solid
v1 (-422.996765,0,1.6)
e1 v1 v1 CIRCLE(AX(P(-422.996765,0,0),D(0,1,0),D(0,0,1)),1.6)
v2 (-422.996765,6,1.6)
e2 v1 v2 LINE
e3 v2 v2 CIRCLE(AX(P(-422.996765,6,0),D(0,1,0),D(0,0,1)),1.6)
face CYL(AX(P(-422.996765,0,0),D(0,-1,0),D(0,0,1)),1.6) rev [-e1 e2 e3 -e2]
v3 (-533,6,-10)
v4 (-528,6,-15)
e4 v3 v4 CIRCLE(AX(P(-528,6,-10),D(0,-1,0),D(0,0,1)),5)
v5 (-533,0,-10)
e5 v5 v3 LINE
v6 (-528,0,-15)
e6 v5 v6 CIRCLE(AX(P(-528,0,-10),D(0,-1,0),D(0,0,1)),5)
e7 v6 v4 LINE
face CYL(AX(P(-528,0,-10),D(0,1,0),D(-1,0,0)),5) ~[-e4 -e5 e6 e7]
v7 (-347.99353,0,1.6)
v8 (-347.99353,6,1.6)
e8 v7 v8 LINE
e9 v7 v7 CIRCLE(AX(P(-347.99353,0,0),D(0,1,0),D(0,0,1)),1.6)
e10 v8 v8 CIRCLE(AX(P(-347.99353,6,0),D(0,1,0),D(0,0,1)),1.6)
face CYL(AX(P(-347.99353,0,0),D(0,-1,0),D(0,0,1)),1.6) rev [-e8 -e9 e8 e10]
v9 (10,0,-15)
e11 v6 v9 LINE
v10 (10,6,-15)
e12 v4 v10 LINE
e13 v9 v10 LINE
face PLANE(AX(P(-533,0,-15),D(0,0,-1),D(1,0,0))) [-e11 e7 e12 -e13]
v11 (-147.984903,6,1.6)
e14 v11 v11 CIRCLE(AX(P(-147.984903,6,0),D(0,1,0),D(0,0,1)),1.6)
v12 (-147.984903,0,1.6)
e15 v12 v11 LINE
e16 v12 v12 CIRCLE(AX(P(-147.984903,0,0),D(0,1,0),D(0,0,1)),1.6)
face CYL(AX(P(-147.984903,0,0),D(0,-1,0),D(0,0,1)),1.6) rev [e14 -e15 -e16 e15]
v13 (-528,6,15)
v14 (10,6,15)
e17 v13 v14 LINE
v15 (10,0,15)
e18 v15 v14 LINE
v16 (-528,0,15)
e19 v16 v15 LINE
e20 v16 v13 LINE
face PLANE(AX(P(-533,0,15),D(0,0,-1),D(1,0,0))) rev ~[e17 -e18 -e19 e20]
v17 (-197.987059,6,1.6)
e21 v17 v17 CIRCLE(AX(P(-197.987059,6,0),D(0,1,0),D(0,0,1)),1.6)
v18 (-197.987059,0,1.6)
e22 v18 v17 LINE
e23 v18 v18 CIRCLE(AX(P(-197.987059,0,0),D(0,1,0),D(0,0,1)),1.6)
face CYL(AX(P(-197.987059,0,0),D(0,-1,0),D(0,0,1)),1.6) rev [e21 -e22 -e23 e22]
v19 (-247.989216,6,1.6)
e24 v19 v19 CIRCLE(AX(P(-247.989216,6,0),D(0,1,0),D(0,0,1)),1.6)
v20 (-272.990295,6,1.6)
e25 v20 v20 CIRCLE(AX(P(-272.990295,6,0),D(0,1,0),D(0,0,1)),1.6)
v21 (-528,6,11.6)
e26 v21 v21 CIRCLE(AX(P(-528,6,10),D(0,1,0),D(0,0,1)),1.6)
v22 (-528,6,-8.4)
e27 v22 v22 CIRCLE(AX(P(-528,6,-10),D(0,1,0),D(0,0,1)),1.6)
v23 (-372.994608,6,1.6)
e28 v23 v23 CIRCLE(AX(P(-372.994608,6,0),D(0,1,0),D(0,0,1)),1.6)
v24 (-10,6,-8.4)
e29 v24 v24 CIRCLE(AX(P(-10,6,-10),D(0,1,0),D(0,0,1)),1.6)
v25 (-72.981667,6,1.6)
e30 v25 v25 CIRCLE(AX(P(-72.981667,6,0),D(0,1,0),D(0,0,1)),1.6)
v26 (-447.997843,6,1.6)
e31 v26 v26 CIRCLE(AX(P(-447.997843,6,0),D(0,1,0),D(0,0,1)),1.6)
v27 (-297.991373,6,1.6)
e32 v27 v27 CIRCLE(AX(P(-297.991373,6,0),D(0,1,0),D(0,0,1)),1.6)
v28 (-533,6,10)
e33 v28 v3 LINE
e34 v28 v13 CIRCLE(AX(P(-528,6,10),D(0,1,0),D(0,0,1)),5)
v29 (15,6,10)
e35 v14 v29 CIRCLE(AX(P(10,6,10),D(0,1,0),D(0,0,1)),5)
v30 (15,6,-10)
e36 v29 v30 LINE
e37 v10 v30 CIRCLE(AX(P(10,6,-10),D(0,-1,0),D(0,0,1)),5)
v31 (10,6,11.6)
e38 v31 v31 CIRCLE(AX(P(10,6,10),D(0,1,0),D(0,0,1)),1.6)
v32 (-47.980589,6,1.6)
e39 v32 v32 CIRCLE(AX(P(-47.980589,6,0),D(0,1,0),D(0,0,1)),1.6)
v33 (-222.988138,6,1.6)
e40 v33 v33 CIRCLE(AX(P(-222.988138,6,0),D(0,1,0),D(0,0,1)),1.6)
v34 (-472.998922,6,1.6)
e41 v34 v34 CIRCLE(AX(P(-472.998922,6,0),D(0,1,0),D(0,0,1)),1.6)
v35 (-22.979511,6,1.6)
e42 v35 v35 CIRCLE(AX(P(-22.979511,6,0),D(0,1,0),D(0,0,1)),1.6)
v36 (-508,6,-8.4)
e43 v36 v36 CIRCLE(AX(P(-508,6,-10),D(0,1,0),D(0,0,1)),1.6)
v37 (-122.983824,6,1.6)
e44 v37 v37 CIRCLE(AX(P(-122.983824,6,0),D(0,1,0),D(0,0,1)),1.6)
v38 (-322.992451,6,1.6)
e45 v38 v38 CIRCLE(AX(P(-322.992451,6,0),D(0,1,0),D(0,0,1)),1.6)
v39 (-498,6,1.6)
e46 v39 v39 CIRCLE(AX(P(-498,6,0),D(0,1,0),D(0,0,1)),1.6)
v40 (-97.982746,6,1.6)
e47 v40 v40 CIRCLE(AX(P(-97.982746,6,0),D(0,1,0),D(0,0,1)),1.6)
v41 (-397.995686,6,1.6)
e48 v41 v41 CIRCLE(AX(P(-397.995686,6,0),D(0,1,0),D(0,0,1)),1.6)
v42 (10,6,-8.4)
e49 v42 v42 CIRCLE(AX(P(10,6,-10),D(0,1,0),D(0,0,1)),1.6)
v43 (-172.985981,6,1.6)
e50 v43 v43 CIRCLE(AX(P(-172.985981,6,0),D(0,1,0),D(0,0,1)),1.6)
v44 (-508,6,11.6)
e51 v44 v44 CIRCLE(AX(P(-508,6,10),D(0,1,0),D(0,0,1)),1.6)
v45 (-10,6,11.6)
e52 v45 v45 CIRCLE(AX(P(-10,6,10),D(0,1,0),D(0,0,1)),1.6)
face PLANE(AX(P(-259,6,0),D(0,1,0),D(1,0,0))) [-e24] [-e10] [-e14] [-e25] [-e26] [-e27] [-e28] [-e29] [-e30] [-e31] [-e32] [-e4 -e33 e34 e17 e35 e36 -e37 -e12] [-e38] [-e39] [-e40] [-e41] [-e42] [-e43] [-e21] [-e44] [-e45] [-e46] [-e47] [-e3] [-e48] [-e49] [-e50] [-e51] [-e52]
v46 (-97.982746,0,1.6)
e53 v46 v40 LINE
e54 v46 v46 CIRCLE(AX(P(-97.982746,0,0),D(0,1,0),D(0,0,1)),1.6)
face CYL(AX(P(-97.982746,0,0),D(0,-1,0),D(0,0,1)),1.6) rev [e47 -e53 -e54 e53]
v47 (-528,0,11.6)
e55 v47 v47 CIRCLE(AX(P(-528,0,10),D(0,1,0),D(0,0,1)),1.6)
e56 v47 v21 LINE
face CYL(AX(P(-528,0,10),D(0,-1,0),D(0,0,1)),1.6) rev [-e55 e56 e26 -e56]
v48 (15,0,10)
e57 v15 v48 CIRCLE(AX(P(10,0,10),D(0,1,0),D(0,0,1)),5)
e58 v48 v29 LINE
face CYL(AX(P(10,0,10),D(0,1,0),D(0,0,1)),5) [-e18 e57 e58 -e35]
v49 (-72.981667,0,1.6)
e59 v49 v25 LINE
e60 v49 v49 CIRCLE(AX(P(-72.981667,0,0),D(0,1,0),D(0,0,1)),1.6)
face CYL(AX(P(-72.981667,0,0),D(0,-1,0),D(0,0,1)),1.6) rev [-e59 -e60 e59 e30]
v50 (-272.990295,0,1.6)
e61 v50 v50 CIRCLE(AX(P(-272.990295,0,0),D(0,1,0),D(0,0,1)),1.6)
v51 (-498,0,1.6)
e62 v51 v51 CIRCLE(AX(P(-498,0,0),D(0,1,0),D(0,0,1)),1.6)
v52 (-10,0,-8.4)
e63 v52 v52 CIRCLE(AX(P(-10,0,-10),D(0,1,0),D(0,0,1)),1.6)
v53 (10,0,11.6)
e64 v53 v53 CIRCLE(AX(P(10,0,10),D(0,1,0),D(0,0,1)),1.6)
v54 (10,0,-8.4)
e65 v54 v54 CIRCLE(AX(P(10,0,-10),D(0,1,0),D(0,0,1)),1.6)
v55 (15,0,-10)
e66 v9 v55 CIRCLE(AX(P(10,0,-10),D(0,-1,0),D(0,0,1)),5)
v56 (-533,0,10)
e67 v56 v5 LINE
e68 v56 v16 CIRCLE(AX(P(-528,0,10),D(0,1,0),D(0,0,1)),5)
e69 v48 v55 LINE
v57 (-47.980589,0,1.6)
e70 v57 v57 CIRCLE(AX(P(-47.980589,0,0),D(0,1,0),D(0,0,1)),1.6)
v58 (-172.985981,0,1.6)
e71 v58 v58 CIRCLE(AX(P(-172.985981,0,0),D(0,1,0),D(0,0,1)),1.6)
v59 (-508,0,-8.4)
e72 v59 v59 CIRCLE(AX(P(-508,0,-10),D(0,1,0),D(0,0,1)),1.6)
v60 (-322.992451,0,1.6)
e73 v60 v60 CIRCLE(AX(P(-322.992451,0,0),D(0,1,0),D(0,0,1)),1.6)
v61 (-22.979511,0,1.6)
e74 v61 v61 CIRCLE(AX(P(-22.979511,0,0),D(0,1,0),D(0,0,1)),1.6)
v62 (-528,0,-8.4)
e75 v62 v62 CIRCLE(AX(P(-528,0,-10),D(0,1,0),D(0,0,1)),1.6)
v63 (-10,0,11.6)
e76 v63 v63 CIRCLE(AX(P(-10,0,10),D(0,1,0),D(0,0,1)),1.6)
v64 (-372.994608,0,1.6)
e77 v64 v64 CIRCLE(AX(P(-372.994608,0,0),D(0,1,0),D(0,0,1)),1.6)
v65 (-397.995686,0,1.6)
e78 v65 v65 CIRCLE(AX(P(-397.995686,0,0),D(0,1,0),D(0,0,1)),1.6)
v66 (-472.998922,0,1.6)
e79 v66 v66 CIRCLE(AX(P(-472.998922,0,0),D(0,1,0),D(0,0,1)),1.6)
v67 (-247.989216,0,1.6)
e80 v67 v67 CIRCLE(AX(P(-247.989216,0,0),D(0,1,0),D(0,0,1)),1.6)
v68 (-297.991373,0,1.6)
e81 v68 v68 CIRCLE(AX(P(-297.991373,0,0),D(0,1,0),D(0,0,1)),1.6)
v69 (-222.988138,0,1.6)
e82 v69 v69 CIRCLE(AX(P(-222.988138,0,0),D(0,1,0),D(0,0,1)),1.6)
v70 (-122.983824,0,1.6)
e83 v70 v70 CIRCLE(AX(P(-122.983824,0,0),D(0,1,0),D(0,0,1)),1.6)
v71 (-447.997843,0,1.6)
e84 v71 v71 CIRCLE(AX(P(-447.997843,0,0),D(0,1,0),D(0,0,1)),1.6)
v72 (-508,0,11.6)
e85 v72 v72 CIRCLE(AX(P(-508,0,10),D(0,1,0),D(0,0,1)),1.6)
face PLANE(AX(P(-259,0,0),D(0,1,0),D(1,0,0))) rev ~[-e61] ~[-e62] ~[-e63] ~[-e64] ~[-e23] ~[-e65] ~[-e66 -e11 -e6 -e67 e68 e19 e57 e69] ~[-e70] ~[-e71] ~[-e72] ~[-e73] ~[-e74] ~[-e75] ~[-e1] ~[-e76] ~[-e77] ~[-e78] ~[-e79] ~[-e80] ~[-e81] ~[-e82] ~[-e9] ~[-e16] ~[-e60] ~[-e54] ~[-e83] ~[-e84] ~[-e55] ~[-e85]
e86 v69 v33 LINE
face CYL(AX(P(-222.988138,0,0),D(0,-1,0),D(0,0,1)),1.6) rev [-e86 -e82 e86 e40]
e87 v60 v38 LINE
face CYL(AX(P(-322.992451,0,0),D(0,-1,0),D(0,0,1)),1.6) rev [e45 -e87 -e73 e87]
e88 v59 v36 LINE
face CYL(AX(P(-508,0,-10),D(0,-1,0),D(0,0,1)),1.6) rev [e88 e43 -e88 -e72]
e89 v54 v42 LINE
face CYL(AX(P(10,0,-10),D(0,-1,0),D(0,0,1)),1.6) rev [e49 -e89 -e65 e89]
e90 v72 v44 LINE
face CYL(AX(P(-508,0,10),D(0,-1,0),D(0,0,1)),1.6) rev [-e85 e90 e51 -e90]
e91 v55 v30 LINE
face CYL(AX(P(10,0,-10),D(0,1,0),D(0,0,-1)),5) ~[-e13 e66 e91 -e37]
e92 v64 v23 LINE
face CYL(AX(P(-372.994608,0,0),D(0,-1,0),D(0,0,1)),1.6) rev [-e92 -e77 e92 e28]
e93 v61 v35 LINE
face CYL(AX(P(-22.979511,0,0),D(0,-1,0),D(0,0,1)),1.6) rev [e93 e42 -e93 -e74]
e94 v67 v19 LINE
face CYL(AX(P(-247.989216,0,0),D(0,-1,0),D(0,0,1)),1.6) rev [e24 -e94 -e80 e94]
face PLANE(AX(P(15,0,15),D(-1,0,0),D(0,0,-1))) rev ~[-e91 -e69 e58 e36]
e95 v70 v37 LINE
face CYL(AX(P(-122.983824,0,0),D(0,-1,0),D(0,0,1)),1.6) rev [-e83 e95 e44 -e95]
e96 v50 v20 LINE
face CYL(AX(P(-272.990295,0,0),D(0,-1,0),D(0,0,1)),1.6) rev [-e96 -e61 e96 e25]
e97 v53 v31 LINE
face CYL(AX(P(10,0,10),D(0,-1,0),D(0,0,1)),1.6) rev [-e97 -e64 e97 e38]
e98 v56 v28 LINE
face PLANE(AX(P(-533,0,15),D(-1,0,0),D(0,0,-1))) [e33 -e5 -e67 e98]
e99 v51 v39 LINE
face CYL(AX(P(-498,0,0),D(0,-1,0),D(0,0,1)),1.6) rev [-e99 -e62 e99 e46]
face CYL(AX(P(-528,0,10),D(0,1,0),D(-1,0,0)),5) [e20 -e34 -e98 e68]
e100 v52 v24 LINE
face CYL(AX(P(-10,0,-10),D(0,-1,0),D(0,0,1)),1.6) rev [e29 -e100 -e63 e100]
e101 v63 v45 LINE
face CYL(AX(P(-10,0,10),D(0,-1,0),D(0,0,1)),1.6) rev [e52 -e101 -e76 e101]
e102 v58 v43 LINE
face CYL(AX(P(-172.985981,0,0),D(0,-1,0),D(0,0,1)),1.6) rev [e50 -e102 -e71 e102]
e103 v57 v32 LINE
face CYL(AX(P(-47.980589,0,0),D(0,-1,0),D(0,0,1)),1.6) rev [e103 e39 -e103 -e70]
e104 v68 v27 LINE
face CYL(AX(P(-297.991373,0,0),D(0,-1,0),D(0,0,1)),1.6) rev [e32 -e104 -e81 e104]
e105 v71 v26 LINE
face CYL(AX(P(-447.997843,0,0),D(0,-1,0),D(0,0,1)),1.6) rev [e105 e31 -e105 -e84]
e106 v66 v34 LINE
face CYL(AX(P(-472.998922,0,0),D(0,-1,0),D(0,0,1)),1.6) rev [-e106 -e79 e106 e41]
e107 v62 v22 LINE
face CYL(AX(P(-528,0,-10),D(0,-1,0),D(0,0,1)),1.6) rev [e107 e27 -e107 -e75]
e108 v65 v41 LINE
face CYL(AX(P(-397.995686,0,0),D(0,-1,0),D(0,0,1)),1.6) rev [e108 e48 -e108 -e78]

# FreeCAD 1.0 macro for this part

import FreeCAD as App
import Part
import Sketcher
Q = App.Units.Quantity


def edges_at(feature, points):
    """Names of the edges that pass closest to the given points."""
    edges = feature.Shape.Edges
    near = lambda p: min(range(len(edges)), key=lambda i: edges[i].distToShape(Part.Vertex(*p))[0])
    return sorted({f"Edge{near(p) + 1}" for p in points})


def add_polygon(sketch, points):
    """Adds a closed chain of lines whose ends are joined by coincident constraints."""
    first, n = sketch.GeometryCount, len(points)
    for a, b in zip(points, points[1:] + points[:1]):
        sketch.addGeometry(Part.LineSegment(App.Vector(*a, 0), App.Vector(*b, 0)), False)
    for i in range(n):
        sketch.addConstraint(Sketcher.Constraint("Coincident", first + i, 2, first + (i + 1) % n, 1))

doc = App.newDocument("Part")
body = doc.addObject("PartDesign::Body", "Body")

sketch1 = body.newObject("Sketcher::SketchObject", "Sketch")
sketch1.AttachmentSupport = (doc.getObject("XZ_Plane"), [""])
sketch1.MapMode = "FlatFace"
add_polygon(sketch1, [(-533, -15), (-533, 15), (15, 15), (15, -15)])
sketch1.addGeometry(Part.Circle(App.Vector(-528, 10, 0), App.Vector(0, 0, 1), 1.6), False)
sketch1.addGeometry(Part.Circle(App.Vector(-508, 10, 0), App.Vector(0, 0, 1), 1.6), False)
sketch1.addGeometry(Part.Circle(App.Vector(-10, 10, 0), App.Vector(0, 0, 1), 1.6), False)
sketch1.addGeometry(Part.Circle(App.Vector(10, 10, 0), App.Vector(0, 0, 1), 1.6), False)
sketch1.addGeometry(Part.Circle(App.Vector(-498, 0, 0), App.Vector(0, 0, 1), 1.6), False)
sketch1.addGeometry(Part.Circle(App.Vector(-472.998922, 0, 0), App.Vector(0, 0, 1), 1.6), False)
sketch1.addGeometry(Part.Circle(App.Vector(-447.997843, 0, 0), App.Vector(0, 0, 1), 1.6), False)
sketch1.addGeometry(Part.Circle(App.Vector(-422.996765, 0, 0), App.Vector(0, 0, 1), 1.6), False)
sketch1.addGeometry(Part.Circle(App.Vector(-397.995686, 0, 0), App.Vector(0, 0, 1), 1.6), False)
sketch1.addGeometry(Part.Circle(App.Vector(-372.994608, 0, 0), App.Vector(0, 0, 1), 1.6), False)
sketch1.addGeometry(Part.Circle(App.Vector(-347.99353, 0, 0), App.Vector(0, 0, 1), 1.6), False)
sketch1.addGeometry(Part.Circle(App.Vector(-322.992451, 0, 0), App.Vector(0, 0, 1), 1.6), False)
sketch1.addGeometry(Part.Circle(App.Vector(-297.991373, 0, 0), App.Vector(0, 0, 1), 1.6), False)
sketch1.addGeometry(Part.Circle(App.Vector(-272.990295, 0, 0), App.Vector(0, 0, 1), 1.6), False)
sketch1.addGeometry(Part.Circle(App.Vector(-528, -10, 0), App.Vector(0, 0, 1), 1.6), False)
sketch1.addGeometry(Part.Circle(App.Vector(-508, -10, 0), App.Vector(0, 0, 1), 1.6), False)
sketch1.addGeometry(Part.Circle(App.Vector(-247.989216, 0, 0), App.Vector(0, 0, 1), 1.6), False)
sketch1.addGeometry(Part.Circle(App.Vector(-222.988138, 0, 0), App.Vector(0, 0, 1), 1.6), False)
sketch1.addGeometry(Part.Circle(App.Vector(-197.987059, 0, 0), App.Vector(0, 0, 1), 1.6), False)
sketch1.addGeometry(Part.Circle(App.Vector(-172.985981, 0, 0), App.Vector(0, 0, 1), 1.6), False)
sketch1.addGeometry(Part.Circle(App.Vector(-147.984903, 0, 0), App.Vector(0, 0, 1), 1.6), False)
sketch1.addGeometry(Part.Circle(App.Vector(-122.983824, 0, 0), App.Vector(0, 0, 1), 1.6), False)
sketch1.addGeometry(Part.Circle(App.Vector(-97.982746, 0, 0), App.Vector(0, 0, 1), 1.6), False)
sketch1.addGeometry(Part.Circle(App.Vector(-72.981667, 0, 0), App.Vector(0, 0, 1), 1.6), False)
sketch1.addGeometry(Part.Circle(App.Vector(-47.980589, 0, 0), App.Vector(0, 0, 1), 1.6), False)
sketch1.addGeometry(Part.Circle(App.Vector(-22.979511, 0, 0), App.Vector(0, 0, 1), 1.6), False)
sketch1.addGeometry(Part.Circle(App.Vector(-10, -10, 0), App.Vector(0, 0, 1), 1.6), False)
sketch1.addGeometry(Part.Circle(App.Vector(10, -10, 0), App.Vector(0, 0, 1), 1.6), False)
sketch1.addConstraint([
    Sketcher.Constraint("Vertical", 0),
    Sketcher.Constraint("Horizontal", 1),
    Sketcher.Constraint("Vertical", 2),
    Sketcher.Constraint("Horizontal", 3),
    Sketcher.Constraint("Equal", 4, 5),
    Sketcher.Constraint("Equal", 5, 6),
    Sketcher.Constraint("Equal", 6, 7),
    Sketcher.Constraint("Equal", 7, 8),
    Sketcher.Constraint("Equal", 8, 9),
    Sketcher.Constraint("Equal", 9, 10),
    Sketcher.Constraint("Equal", 10, 11),
    Sketcher.Constraint("Equal", 11, 12),
    Sketcher.Constraint("Equal", 12, 13),
    Sketcher.Constraint("Equal", 13, 14),
    Sketcher.Constraint("Equal", 14, 15),
    Sketcher.Constraint("Equal", 15, 16),
    Sketcher.Constraint("Equal", 16, 17),
    Sketcher.Constraint("Equal", 17, 18),
    Sketcher.Constraint("Equal", 18, 19),
    Sketcher.Constraint("Equal", 19, 20),
    Sketcher.Constraint("Equal", 20, 21),
    Sketcher.Constraint("Equal", 21, 22),
    Sketcher.Constraint("Equal", 22, 23),
    Sketcher.Constraint("Equal", 23, 24),
    Sketcher.Constraint("Equal", 24, 25),
    Sketcher.Constraint("Equal", 25, 26),
    Sketcher.Constraint("Equal", 26, 27),
    Sketcher.Constraint("Equal", 27, 28),
    Sketcher.Constraint("Equal", 28, 29),
    Sketcher.Constraint("Equal", 29, 30),
    Sketcher.Constraint("Equal", 30, 31),
    Sketcher.Constraint("Symmetric", 7, 3, 30, 3, -1, 1),
    Sketcher.Constraint("Symmetric", 6, 3, 31, 3, -1, 1),
    Sketcher.Constraint("Symmetric", 6, 3, 7, 3, -2),
    Sketcher.Constraint("Symmetric", 4, 3, 18, 3, -1),
    Sketcher.Constraint("Symmetric", 5, 3, 19, 3, -1),
    Sketcher.Constraint("PointOnObject", 8, 3, -1),
    Sketcher.Constraint("PointOnObject", 9, 3, -1),
    Sketcher.Constraint("PointOnObject", 10, 3, -1),
    Sketcher.Constraint("PointOnObject", 11, 3, -1),
    Sketcher.Constraint("PointOnObject", 12, 3, -1),
    Sketcher.Constraint("PointOnObject", 13, 3, -1),
    Sketcher.Constraint("PointOnObject", 14, 3, -1),
    Sketcher.Constraint("PointOnObject", 15, 3, -1),
    Sketcher.Constraint("PointOnObject", 16, 3, -1),
    Sketcher.Constraint("PointOnObject", 17, 3, -1),
    Sketcher.Constraint("PointOnObject", 20, 3, -1),
    Sketcher.Constraint("PointOnObject", 21, 3, -1),
    Sketcher.Constraint("PointOnObject", 22, 3, -1),
    Sketcher.Constraint("PointOnObject", 23, 3, -1),
    Sketcher.Constraint("PointOnObject", 24, 3, -1),
    Sketcher.Constraint("PointOnObject", 25, 3, -1),
    Sketcher.Constraint("PointOnObject", 26, 3, -1),
    Sketcher.Constraint("PointOnObject", 27, 3, -1),
    Sketcher.Constraint("PointOnObject", 28, 3, -1),
    Sketcher.Constraint("PointOnObject", 29, 3, -1),
    Sketcher.Constraint("Horizontal", 4, 3, 5, 3),
    Sketcher.Constraint("Horizontal", 5, 3, 6, 3),
    Sketcher.Constraint("Diameter", 4, Q("3.2 mm")),
    Sketcher.Constraint("DistanceX", 1, 1, 1, 2, Q("548 mm")),
    Sketcher.Constraint("DistanceY", 0, 1, 0, 2, Q("30 mm")),
    Sketcher.Constraint("DistanceX", 4, 3, -1, 1, Q("528 mm")),
    Sketcher.Constraint("DistanceY", -1, 1, 4, 3, Q("10 mm")),
    Sketcher.Constraint("DistanceX", 5, 3, -1, 1, Q("508 mm")),
    Sketcher.Constraint("DistanceX", 6, 3, -1, 1, Q("10 mm")),
    Sketcher.Constraint("DistanceX", 8, 3, -1, 1, Q("498 mm")),
    Sketcher.Constraint("DistanceX", 0, 2, -1, 1, Q("533 mm")),
    Sketcher.Constraint("DistanceY", -1, 1, 0, 2, Q("15 mm")),
    Sketcher.Constraint("DistanceX", 9, 3, -1, 1, Q("472.998922 mm")),
    Sketcher.Constraint("DistanceX", 13, 3, -1, 1, Q("372.994608 mm")),
    Sketcher.Constraint("DistanceX", 14, 3, -1, 1, Q("347.99353 mm")),
    Sketcher.Constraint("DistanceX", 15, 3, -1, 1, Q("322.992451 mm")),
    Sketcher.Constraint("DistanceX", 22, 3, -1, 1, Q("197.987059 mm")),
    Sketcher.Constraint("DistanceX", 23, 3, -1, 1, Q("172.985981 mm")),
    Sketcher.Constraint("DistanceX", 28, 3, -1, 1, Q("47.980589 mm")),
    Sketcher.Constraint("DistanceX", 29, 3, -1, 1, Q("22.979511 mm")),
    Sketcher.Constraint("DistanceX", 9, 3, 10, 3, Q("25.001078 mm")),
    Sketcher.Constraint("DistanceX", 10, 3, 11, 3, Q("25.001078 mm")),
    Sketcher.Constraint("DistanceX", 11, 3, 12, 3, Q("25.001078 mm")),
    Sketcher.Constraint("DistanceX", 15, 3, 16, 3, Q("25.001078 mm")),
    Sketcher.Constraint("DistanceX", 16, 3, 17, 3, Q("25.001078 mm")),
    Sketcher.Constraint("DistanceX", 17, 3, 20, 3, Q("25.001078 mm")),
    Sketcher.Constraint("DistanceX", 20, 3, 21, 3, Q("25.001078 mm")),
    Sketcher.Constraint("DistanceX", 23, 3, 24, 3, Q("25.001078 mm")),
    Sketcher.Constraint("DistanceX", 24, 3, 25, 3, Q("25.001078 mm")),
    Sketcher.Constraint("DistanceX", 25, 3, 26, 3, Q("25.001078 mm")),
    Sketcher.Constraint("DistanceX", 26, 3, 27, 3, Q("25.001078 mm")),
])
pad1 = body.newObject("PartDesign::Pad", "Pad")
pad1.Profile = sketch1
pad1.Length = 6
pad1.Reversed = True
doc.recompute()

fillet = body.newObject("PartDesign::Fillet", "Fillet")
fillet.Base = (pad1, edges_at(pad1, [
    (-533, 3, 15),
    (-533, 3, -15),
    (15, 3, -15),
    (15, 3, 15),
]))
fillet.Radius = 5

doc.recompute()
